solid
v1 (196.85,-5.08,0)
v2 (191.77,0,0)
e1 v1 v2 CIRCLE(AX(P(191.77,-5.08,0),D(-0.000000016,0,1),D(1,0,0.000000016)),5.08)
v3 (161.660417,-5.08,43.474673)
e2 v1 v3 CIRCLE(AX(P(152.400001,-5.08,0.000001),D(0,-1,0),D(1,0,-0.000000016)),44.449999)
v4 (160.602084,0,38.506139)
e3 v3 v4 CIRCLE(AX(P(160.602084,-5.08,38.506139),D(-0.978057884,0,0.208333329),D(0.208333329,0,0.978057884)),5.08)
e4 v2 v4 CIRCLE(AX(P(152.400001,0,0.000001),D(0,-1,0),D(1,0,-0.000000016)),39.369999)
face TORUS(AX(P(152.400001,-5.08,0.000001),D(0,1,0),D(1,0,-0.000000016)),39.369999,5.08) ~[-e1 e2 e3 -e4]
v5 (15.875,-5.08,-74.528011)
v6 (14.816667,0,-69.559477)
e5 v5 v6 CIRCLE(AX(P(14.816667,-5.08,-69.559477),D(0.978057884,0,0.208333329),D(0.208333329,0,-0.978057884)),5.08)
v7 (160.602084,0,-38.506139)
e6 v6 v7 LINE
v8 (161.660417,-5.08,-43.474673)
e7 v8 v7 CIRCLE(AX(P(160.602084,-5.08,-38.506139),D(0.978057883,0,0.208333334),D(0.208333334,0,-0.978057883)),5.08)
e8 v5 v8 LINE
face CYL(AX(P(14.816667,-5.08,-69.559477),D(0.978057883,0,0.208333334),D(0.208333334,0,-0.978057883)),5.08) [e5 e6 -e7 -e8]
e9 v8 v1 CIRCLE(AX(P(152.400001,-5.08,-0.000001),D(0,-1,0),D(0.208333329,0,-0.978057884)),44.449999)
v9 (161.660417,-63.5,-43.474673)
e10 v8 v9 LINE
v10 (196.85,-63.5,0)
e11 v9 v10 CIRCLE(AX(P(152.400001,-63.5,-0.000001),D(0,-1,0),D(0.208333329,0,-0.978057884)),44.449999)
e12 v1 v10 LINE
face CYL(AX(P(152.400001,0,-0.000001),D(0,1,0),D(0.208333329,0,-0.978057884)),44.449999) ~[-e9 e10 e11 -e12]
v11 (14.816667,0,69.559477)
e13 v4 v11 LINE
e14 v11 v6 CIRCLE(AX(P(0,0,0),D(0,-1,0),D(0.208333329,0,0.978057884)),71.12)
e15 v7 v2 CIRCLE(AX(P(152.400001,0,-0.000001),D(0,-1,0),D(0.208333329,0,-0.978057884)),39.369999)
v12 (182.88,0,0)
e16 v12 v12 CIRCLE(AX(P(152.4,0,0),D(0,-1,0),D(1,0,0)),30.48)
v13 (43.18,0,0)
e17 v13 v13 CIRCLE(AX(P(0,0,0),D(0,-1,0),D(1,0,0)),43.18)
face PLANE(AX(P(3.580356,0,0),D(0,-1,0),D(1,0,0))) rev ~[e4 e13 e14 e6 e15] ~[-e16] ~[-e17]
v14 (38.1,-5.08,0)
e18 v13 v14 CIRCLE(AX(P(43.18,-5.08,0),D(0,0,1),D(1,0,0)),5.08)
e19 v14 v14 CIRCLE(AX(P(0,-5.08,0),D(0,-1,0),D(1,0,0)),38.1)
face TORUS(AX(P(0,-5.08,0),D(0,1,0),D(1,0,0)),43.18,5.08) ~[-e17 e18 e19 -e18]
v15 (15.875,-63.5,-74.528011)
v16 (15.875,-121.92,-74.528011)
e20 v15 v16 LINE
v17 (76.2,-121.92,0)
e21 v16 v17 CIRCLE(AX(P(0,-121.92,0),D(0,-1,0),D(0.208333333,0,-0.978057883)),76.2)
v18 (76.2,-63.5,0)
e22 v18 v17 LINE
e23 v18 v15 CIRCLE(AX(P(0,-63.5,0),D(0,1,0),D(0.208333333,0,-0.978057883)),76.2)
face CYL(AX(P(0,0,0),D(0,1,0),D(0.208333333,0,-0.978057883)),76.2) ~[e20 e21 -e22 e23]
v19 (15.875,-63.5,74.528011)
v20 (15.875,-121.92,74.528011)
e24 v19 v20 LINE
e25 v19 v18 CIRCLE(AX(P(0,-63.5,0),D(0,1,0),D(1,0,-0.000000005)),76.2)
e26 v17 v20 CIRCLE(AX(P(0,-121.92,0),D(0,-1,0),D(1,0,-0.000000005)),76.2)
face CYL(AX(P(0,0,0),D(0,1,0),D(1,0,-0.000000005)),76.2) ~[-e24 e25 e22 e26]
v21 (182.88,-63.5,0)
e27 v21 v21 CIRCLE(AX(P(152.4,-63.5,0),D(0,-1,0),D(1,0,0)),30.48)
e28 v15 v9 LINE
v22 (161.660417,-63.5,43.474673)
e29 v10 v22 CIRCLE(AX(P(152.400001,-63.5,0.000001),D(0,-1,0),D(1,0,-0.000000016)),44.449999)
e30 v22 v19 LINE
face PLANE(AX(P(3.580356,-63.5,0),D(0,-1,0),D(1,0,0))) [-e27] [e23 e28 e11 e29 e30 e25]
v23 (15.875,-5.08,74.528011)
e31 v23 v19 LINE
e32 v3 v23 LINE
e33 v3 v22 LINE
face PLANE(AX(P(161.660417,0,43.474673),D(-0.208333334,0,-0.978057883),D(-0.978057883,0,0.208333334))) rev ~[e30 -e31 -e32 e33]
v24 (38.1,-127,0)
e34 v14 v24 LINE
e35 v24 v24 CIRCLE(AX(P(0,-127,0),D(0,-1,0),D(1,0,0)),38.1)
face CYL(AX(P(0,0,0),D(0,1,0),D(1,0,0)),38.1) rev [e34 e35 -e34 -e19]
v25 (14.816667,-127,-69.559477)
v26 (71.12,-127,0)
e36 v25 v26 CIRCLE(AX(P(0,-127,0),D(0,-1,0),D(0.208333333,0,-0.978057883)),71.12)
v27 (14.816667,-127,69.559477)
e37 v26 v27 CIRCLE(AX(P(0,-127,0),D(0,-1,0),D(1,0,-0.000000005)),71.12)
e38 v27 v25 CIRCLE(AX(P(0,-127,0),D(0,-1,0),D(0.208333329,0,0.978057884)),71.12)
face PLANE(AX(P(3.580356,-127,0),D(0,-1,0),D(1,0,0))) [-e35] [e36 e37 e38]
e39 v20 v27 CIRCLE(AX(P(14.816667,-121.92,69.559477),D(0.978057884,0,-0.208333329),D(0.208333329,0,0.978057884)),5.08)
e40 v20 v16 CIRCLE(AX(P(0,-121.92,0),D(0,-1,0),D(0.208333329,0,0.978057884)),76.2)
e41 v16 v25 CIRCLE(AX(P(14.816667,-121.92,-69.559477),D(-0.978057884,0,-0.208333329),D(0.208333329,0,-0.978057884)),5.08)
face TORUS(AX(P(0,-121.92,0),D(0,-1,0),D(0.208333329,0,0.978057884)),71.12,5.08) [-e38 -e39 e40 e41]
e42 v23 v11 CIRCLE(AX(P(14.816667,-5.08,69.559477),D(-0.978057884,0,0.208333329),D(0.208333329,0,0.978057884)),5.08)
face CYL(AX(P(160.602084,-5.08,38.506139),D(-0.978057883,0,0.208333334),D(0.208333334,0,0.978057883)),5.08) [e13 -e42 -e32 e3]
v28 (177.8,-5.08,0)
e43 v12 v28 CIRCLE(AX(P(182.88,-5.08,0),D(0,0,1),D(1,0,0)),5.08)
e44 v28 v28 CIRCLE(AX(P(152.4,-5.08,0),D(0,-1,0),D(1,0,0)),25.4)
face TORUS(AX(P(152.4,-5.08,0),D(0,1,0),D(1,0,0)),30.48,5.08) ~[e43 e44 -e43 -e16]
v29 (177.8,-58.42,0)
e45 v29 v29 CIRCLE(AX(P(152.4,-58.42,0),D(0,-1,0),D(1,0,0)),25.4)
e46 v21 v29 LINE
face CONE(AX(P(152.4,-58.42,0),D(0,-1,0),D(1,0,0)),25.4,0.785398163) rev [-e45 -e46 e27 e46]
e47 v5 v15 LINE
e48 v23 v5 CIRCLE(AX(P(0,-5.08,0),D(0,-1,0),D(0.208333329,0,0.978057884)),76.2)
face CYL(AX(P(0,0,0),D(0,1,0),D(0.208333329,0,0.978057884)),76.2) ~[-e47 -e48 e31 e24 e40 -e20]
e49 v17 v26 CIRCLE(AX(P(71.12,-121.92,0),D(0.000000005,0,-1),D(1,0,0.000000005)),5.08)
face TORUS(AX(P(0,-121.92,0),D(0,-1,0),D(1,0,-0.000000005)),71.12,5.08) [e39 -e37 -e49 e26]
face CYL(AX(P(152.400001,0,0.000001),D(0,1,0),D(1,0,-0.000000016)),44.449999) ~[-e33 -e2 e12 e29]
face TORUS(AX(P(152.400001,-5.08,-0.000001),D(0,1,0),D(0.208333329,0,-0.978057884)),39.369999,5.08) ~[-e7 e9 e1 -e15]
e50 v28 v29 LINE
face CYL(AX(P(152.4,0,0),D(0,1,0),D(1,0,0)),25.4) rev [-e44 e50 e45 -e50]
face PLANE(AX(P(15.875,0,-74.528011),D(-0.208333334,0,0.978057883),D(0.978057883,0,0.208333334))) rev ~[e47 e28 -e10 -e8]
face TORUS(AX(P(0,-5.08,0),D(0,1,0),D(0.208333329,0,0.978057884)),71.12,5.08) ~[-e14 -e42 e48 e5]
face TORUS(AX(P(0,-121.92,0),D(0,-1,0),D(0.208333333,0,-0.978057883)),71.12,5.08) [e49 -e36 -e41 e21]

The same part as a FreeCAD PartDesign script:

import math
import FreeCAD as App
import Part
import Sketcher
Q = App.Units.Quantity


def edges_at(feature, points):
    """Names of the edges that pass closest to the given points."""
    edges = feature.Shape.Edges
    near = lambda p: min(range(len(edges)), key=lambda i: edges[i].distToShape(Part.Vertex(*p))[0])
    return sorted({f"Edge{near(p) + 1}" for p in points})

doc = App.newDocument("Part")
body = doc.addObject("PartDesign::Body", "Body")

sketch1 = body.newObject("Sketcher::SketchObject", "Sketch")
sketch1.AttachmentSupport = (doc.getObject("XZ_Plane"), [""])
sketch1.MapMode = "FlatFace"
sketch1.addGeometry([
    Part.ArcOfCircle(Part.Circle(App.Vector(0, 0, 0), App.Vector(0, 0, 1), 76), math.radians(78), math.radians(282)),
    Part.LineSegment(App.Vector(16, -75, 0), App.Vector(162, -43, 0)),
    Part.ArcOfCircle(Part.Circle(App.Vector(152, 0, 0), App.Vector(0, 0, 1), 44), math.radians(-78), math.radians(0)),
    Part.ArcOfCircle(Part.Circle(App.Vector(152, 0, 0), App.Vector(0, 0, 1), 44), math.radians(0), math.radians(78)),
    Part.LineSegment(App.Vector(162, 43, 0), App.Vector(16, 75, 0)),
    Part.Circle(App.Vector(0, 0, 0), App.Vector(0, 0, 1), 38),
    Part.Circle(App.Vector(152, 0, 0), App.Vector(0, 0, 1), 25),
], False)
sketch1.addConstraint([
    Sketcher.Constraint("Tangent", 0, 2, 1, 1),
    Sketcher.Constraint("Tangent", 1, 2, 2, 1),
    Sketcher.Constraint("Tangent", 2, 2, 3, 1),
    Sketcher.Constraint("Tangent", 3, 2, 4, 1),
    Sketcher.Constraint("Tangent", 4, 2, 0, 1),
    Sketcher.Constraint("Coincident", 0, 3, -1, 1),
    Sketcher.Constraint("Coincident", 5, 3, -1, 1),
    Sketcher.Constraint("Coincident", 6, 3, 2, 3),
    Sketcher.Constraint("Equal", 2, 3),
    Sketcher.Constraint("PointOnObject", 2, 3, -1),
    Sketcher.Constraint("PointOnObject", 2, 2, -1),
    Sketcher.Constraint("Diameter", 5, Q("3 in")),
    Sketcher.Constraint("Diameter", 6, Q("2 in")),
    Sketcher.Constraint("Radius", 0, Q("3 in")),
    Sketcher.Constraint("Radius", 2, Q("1.75 in")),
    Sketcher.Constraint("DistanceX", -1, 1, 2, 3, Q("6 in")),
])
pad1 = body.newObject("PartDesign::Pad", "Pad")
pad1.Profile = sketch1
pad1.Length = Q("2.5 in")

sketch2 = body.newObject("Sketcher::SketchObject", "Sketch001")
sketch2.AttachmentSupport = (doc.getObject("XZ_Plane"), [""])
sketch2.MapMode = "FlatFace"
sketch2.addGeometry([
    Part.ArcOfCircle(Part.Circle(App.Vector(0, 0, 0), App.Vector(0, 0, 1), 76), math.radians(-78), math.radians(0)),
    Part.ArcOfCircle(Part.Circle(App.Vector(0, 0, 0), App.Vector(0, 0, 1), 76), math.radians(0), math.radians(78)),
    Part.ArcOfCircle(Part.Circle(App.Vector(0, 0, 0), App.Vector(0, 0, 1), 76), math.radians(78), math.radians(282)),
    Part.Circle(App.Vector(0, 0, 0), App.Vector(0, 0, 1), 38),
], False)
sketch2.addConstraint([
    Sketcher.Constraint("Tangent", 0, 2, 1, 1),
    Sketcher.Constraint("Tangent", 1, 2, 2, 1),
    Sketcher.Constraint("Tangent", 2, 2, 0, 1),
    Sketcher.Constraint("Coincident", 0, 3, -1, 1),
    Sketcher.Constraint("Coincident", 3, 3, -1, 1),
    Sketcher.Constraint("PointOnObject", 0, 2, -1),
    Sketcher.Constraint("Vertical", 1, 2, 2, 2),
    Sketcher.Constraint("Diameter", 3, Q("3 in")),
    Sketcher.Constraint("Radius", 0, Q("3 in")),
    Sketcher.Constraint("DistanceX", -1, 1, 1, 2, Q("0.625 in")),
])
pad2 = body.newObject("PartDesign::Pad", "Pad001")
pad2.Profile = sketch2
pad2.Length = Q("5 in")
doc.recompute()

fillet = body.newObject("PartDesign::Fillet", "Fillet")
fillet.Base = (pad2, edges_at(pad2, [
    (-76.2, -127, 0),
    (-76.2, 0, 0),
    (88.768, 0, -59.001),
    (186.95, 0, -27.966),
    (88.768, 0, 59.001),
    (-38.1, 0, 0),
    (127, 0, 0),
]))
fillet.Radius = Q("0.2 in")
doc.recompute()

chamfer = body.newObject("PartDesign::Chamfer", "Chamfer")
chamfer.Base = (fillet, edges_at(fillet, [(127, -63.5, 0)]))
chamfer.Size = Q("0.2 in")

doc.recompute()
